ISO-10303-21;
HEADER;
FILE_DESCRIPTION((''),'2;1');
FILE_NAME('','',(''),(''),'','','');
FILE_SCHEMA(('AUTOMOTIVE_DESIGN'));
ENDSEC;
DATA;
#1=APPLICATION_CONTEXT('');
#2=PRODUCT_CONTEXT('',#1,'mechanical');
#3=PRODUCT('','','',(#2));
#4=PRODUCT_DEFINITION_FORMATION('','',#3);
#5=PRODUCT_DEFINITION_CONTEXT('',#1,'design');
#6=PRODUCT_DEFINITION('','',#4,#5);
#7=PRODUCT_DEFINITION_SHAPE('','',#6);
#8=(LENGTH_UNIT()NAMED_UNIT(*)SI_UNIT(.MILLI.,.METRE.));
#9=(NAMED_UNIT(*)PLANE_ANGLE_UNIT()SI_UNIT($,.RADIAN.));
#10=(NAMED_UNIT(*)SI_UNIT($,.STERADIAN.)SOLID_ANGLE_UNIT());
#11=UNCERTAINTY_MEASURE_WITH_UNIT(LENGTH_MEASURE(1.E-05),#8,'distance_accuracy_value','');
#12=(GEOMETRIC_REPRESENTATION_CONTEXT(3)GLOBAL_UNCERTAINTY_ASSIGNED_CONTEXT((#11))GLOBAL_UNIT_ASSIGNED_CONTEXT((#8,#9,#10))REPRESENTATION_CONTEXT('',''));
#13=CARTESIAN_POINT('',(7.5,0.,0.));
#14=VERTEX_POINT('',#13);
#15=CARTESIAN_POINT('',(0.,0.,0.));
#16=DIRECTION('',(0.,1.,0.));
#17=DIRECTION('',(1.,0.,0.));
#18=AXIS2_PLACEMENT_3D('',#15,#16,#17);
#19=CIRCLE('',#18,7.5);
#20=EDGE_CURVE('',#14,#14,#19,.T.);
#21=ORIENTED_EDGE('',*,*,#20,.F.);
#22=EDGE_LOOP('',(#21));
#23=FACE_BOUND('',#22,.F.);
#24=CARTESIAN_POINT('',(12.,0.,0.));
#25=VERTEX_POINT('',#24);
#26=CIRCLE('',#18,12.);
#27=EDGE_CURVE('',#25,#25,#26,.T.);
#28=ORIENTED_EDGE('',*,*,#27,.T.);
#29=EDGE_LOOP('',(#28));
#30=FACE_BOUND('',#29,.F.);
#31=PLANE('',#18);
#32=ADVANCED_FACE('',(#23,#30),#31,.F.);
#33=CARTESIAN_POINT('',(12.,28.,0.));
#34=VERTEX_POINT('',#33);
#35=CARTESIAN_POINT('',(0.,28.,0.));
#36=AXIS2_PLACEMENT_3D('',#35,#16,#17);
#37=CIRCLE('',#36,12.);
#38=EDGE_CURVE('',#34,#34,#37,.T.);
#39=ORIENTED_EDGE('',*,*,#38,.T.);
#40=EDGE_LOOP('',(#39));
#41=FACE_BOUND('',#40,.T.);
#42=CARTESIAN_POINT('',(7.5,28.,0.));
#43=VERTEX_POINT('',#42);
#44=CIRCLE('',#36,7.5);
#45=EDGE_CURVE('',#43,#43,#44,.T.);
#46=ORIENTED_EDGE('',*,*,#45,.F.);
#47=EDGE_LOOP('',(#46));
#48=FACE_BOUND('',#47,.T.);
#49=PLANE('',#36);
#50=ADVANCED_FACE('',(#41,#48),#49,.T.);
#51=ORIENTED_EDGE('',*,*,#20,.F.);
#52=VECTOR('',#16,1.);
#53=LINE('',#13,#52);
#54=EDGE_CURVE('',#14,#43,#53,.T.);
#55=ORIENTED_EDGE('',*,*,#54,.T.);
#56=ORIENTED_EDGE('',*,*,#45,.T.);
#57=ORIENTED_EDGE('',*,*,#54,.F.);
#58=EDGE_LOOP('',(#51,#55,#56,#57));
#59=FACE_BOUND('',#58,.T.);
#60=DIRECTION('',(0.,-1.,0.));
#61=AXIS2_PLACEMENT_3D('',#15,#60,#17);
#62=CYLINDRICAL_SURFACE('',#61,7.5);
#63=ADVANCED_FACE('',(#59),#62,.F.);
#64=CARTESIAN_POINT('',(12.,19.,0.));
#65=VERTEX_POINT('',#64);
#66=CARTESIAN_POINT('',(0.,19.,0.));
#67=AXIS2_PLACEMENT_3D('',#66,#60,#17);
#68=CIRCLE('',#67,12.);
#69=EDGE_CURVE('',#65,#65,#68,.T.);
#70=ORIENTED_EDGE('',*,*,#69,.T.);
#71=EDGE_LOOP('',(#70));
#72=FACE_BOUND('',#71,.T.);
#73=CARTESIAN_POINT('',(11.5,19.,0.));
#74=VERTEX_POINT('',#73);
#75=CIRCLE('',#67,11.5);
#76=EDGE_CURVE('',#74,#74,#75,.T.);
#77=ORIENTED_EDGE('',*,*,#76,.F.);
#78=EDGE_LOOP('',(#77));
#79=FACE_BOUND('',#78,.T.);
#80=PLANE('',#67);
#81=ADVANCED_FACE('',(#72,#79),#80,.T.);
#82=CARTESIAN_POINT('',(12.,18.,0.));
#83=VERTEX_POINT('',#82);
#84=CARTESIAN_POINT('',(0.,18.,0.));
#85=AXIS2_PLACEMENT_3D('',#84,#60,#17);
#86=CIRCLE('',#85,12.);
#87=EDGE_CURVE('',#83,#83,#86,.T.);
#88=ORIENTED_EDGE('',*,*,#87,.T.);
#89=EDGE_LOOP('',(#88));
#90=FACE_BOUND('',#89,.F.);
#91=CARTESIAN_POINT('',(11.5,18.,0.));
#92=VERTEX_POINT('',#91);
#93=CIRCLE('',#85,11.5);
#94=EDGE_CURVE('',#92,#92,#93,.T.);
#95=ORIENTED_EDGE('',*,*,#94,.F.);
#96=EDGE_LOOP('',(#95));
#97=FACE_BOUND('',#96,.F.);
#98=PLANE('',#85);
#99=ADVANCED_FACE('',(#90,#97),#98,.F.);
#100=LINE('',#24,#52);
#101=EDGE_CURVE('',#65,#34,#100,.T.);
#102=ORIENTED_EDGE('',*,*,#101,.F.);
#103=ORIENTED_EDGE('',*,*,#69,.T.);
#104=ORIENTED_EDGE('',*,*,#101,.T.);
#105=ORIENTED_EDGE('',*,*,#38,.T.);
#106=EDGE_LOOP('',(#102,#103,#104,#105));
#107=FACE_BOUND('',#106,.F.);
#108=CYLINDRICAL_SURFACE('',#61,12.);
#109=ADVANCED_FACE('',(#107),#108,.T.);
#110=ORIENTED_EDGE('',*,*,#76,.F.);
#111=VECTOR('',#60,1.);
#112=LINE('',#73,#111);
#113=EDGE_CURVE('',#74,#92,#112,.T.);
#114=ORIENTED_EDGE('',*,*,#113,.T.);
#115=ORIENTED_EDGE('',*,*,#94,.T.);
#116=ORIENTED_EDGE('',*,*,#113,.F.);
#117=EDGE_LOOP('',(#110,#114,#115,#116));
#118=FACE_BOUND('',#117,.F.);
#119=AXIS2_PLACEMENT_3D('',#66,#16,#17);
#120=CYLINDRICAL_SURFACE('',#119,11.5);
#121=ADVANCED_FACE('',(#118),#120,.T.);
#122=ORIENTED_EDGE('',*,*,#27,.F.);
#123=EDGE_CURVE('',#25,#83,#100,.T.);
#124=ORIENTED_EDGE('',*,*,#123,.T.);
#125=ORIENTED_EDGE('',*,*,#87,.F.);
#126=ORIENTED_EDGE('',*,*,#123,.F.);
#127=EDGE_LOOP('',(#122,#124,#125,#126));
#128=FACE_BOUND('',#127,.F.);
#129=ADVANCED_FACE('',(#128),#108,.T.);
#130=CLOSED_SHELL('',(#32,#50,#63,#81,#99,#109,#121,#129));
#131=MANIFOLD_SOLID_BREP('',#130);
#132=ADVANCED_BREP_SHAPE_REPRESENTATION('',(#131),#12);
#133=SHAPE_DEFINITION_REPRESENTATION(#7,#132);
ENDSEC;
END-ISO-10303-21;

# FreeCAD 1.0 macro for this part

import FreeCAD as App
import Part
import Sketcher

V = App.Vector
Q = App.Units.Quantity

doc = App.newDocument("Part")
params = doc.addObject("Spreadsheet::Sheet", "Params")
for row, (alias, value) in enumerate([
    ("sketch1_diameter", "24 mm"),
    ("sketch1_diameter2", "15 mm"),
    ("pad1_length", "28 mm"),
    ("sketch2_diameter", "24 mm"),
    ("sketch2_diameter2", "23 mm"),
    ("pocket1_length", "1 mm"),
], start=1):
    params.set(f"A{row}", alias)
    params.set(f"B{row}", "=" + value)
    params.setAlias(f"B{row}", alias)

body = doc.addObject("PartDesign::Body", "Body")

# Sketch on XZ plane
sketch1 = body.newObject("Sketcher::SketchObject", "Sketch")
sketch1.AttachmentSupport = (doc.getObject("XZ_Plane"), [""])
sketch1.MapMode = "FlatFace"
sketch1.addGeometry([
    Part.Circle(V(0, 0, 0), V(0, 0, 1), 12),
    Part.Circle(V(0, 0, 0), V(0, 0, 1), 8),
], False)
sketch1.addConstraint([
    Sketcher.Constraint("Coincident", 0, 3, -1, 1),
    Sketcher.Constraint("Coincident", 1, 3, -1, 1),
    Sketcher.Constraint("Diameter", 0, Q("24 mm")),
    Sketcher.Constraint("Diameter", 1, Q("15 mm")),
])
sketch1.setExpression("Constraints[2]", "Params.sketch1_diameter")
sketch1.setExpression("Constraints[3]", "Params.sketch1_diameter2")
pad1 = body.newObject("PartDesign::Pad", "Pad")
pad1.Profile = sketch1
pad1.setExpression("Length", "Params.pad1_length")
pad1.Reversed = True

# Sketch on XZ plane
sketch2 = body.newObject("Sketcher::SketchObject", "Sketch001")
sketch2.AttachmentSupport = (doc.getObject("XZ_Plane"), [""])
sketch2.MapMode = "FlatFace"
sketch2.AttachmentOffset = App.Placement(V(0, 0, -19), App.Rotation())
sketch2.addGeometry([
    Part.Circle(V(0, 0, 0), V(0, 0, 1), 12),
    Part.Circle(V(0, 0, 0), V(0, 0, 1), 12),
], False)
sketch2.addConstraint([
    Sketcher.Constraint("Coincident", 0, 3, -1, 1),
    Sketcher.Constraint("Coincident", 1, 3, -1, 1),
    Sketcher.Constraint("Diameter", 0, Q("24 mm")),
    Sketcher.Constraint("Diameter", 1, Q("23 mm")),
])
sketch2.setExpression("Constraints[2]", "Params.sketch2_diameter")
sketch2.setExpression("Constraints[3]", "Params.sketch2_diameter2")
pocket1 = body.newObject("PartDesign::Pocket", "Pocket")
pocket1.Profile = sketch2
pocket1.setExpression("Length", "Params.pocket1_length")
pocket1.Reversed = True

doc.recompute()
